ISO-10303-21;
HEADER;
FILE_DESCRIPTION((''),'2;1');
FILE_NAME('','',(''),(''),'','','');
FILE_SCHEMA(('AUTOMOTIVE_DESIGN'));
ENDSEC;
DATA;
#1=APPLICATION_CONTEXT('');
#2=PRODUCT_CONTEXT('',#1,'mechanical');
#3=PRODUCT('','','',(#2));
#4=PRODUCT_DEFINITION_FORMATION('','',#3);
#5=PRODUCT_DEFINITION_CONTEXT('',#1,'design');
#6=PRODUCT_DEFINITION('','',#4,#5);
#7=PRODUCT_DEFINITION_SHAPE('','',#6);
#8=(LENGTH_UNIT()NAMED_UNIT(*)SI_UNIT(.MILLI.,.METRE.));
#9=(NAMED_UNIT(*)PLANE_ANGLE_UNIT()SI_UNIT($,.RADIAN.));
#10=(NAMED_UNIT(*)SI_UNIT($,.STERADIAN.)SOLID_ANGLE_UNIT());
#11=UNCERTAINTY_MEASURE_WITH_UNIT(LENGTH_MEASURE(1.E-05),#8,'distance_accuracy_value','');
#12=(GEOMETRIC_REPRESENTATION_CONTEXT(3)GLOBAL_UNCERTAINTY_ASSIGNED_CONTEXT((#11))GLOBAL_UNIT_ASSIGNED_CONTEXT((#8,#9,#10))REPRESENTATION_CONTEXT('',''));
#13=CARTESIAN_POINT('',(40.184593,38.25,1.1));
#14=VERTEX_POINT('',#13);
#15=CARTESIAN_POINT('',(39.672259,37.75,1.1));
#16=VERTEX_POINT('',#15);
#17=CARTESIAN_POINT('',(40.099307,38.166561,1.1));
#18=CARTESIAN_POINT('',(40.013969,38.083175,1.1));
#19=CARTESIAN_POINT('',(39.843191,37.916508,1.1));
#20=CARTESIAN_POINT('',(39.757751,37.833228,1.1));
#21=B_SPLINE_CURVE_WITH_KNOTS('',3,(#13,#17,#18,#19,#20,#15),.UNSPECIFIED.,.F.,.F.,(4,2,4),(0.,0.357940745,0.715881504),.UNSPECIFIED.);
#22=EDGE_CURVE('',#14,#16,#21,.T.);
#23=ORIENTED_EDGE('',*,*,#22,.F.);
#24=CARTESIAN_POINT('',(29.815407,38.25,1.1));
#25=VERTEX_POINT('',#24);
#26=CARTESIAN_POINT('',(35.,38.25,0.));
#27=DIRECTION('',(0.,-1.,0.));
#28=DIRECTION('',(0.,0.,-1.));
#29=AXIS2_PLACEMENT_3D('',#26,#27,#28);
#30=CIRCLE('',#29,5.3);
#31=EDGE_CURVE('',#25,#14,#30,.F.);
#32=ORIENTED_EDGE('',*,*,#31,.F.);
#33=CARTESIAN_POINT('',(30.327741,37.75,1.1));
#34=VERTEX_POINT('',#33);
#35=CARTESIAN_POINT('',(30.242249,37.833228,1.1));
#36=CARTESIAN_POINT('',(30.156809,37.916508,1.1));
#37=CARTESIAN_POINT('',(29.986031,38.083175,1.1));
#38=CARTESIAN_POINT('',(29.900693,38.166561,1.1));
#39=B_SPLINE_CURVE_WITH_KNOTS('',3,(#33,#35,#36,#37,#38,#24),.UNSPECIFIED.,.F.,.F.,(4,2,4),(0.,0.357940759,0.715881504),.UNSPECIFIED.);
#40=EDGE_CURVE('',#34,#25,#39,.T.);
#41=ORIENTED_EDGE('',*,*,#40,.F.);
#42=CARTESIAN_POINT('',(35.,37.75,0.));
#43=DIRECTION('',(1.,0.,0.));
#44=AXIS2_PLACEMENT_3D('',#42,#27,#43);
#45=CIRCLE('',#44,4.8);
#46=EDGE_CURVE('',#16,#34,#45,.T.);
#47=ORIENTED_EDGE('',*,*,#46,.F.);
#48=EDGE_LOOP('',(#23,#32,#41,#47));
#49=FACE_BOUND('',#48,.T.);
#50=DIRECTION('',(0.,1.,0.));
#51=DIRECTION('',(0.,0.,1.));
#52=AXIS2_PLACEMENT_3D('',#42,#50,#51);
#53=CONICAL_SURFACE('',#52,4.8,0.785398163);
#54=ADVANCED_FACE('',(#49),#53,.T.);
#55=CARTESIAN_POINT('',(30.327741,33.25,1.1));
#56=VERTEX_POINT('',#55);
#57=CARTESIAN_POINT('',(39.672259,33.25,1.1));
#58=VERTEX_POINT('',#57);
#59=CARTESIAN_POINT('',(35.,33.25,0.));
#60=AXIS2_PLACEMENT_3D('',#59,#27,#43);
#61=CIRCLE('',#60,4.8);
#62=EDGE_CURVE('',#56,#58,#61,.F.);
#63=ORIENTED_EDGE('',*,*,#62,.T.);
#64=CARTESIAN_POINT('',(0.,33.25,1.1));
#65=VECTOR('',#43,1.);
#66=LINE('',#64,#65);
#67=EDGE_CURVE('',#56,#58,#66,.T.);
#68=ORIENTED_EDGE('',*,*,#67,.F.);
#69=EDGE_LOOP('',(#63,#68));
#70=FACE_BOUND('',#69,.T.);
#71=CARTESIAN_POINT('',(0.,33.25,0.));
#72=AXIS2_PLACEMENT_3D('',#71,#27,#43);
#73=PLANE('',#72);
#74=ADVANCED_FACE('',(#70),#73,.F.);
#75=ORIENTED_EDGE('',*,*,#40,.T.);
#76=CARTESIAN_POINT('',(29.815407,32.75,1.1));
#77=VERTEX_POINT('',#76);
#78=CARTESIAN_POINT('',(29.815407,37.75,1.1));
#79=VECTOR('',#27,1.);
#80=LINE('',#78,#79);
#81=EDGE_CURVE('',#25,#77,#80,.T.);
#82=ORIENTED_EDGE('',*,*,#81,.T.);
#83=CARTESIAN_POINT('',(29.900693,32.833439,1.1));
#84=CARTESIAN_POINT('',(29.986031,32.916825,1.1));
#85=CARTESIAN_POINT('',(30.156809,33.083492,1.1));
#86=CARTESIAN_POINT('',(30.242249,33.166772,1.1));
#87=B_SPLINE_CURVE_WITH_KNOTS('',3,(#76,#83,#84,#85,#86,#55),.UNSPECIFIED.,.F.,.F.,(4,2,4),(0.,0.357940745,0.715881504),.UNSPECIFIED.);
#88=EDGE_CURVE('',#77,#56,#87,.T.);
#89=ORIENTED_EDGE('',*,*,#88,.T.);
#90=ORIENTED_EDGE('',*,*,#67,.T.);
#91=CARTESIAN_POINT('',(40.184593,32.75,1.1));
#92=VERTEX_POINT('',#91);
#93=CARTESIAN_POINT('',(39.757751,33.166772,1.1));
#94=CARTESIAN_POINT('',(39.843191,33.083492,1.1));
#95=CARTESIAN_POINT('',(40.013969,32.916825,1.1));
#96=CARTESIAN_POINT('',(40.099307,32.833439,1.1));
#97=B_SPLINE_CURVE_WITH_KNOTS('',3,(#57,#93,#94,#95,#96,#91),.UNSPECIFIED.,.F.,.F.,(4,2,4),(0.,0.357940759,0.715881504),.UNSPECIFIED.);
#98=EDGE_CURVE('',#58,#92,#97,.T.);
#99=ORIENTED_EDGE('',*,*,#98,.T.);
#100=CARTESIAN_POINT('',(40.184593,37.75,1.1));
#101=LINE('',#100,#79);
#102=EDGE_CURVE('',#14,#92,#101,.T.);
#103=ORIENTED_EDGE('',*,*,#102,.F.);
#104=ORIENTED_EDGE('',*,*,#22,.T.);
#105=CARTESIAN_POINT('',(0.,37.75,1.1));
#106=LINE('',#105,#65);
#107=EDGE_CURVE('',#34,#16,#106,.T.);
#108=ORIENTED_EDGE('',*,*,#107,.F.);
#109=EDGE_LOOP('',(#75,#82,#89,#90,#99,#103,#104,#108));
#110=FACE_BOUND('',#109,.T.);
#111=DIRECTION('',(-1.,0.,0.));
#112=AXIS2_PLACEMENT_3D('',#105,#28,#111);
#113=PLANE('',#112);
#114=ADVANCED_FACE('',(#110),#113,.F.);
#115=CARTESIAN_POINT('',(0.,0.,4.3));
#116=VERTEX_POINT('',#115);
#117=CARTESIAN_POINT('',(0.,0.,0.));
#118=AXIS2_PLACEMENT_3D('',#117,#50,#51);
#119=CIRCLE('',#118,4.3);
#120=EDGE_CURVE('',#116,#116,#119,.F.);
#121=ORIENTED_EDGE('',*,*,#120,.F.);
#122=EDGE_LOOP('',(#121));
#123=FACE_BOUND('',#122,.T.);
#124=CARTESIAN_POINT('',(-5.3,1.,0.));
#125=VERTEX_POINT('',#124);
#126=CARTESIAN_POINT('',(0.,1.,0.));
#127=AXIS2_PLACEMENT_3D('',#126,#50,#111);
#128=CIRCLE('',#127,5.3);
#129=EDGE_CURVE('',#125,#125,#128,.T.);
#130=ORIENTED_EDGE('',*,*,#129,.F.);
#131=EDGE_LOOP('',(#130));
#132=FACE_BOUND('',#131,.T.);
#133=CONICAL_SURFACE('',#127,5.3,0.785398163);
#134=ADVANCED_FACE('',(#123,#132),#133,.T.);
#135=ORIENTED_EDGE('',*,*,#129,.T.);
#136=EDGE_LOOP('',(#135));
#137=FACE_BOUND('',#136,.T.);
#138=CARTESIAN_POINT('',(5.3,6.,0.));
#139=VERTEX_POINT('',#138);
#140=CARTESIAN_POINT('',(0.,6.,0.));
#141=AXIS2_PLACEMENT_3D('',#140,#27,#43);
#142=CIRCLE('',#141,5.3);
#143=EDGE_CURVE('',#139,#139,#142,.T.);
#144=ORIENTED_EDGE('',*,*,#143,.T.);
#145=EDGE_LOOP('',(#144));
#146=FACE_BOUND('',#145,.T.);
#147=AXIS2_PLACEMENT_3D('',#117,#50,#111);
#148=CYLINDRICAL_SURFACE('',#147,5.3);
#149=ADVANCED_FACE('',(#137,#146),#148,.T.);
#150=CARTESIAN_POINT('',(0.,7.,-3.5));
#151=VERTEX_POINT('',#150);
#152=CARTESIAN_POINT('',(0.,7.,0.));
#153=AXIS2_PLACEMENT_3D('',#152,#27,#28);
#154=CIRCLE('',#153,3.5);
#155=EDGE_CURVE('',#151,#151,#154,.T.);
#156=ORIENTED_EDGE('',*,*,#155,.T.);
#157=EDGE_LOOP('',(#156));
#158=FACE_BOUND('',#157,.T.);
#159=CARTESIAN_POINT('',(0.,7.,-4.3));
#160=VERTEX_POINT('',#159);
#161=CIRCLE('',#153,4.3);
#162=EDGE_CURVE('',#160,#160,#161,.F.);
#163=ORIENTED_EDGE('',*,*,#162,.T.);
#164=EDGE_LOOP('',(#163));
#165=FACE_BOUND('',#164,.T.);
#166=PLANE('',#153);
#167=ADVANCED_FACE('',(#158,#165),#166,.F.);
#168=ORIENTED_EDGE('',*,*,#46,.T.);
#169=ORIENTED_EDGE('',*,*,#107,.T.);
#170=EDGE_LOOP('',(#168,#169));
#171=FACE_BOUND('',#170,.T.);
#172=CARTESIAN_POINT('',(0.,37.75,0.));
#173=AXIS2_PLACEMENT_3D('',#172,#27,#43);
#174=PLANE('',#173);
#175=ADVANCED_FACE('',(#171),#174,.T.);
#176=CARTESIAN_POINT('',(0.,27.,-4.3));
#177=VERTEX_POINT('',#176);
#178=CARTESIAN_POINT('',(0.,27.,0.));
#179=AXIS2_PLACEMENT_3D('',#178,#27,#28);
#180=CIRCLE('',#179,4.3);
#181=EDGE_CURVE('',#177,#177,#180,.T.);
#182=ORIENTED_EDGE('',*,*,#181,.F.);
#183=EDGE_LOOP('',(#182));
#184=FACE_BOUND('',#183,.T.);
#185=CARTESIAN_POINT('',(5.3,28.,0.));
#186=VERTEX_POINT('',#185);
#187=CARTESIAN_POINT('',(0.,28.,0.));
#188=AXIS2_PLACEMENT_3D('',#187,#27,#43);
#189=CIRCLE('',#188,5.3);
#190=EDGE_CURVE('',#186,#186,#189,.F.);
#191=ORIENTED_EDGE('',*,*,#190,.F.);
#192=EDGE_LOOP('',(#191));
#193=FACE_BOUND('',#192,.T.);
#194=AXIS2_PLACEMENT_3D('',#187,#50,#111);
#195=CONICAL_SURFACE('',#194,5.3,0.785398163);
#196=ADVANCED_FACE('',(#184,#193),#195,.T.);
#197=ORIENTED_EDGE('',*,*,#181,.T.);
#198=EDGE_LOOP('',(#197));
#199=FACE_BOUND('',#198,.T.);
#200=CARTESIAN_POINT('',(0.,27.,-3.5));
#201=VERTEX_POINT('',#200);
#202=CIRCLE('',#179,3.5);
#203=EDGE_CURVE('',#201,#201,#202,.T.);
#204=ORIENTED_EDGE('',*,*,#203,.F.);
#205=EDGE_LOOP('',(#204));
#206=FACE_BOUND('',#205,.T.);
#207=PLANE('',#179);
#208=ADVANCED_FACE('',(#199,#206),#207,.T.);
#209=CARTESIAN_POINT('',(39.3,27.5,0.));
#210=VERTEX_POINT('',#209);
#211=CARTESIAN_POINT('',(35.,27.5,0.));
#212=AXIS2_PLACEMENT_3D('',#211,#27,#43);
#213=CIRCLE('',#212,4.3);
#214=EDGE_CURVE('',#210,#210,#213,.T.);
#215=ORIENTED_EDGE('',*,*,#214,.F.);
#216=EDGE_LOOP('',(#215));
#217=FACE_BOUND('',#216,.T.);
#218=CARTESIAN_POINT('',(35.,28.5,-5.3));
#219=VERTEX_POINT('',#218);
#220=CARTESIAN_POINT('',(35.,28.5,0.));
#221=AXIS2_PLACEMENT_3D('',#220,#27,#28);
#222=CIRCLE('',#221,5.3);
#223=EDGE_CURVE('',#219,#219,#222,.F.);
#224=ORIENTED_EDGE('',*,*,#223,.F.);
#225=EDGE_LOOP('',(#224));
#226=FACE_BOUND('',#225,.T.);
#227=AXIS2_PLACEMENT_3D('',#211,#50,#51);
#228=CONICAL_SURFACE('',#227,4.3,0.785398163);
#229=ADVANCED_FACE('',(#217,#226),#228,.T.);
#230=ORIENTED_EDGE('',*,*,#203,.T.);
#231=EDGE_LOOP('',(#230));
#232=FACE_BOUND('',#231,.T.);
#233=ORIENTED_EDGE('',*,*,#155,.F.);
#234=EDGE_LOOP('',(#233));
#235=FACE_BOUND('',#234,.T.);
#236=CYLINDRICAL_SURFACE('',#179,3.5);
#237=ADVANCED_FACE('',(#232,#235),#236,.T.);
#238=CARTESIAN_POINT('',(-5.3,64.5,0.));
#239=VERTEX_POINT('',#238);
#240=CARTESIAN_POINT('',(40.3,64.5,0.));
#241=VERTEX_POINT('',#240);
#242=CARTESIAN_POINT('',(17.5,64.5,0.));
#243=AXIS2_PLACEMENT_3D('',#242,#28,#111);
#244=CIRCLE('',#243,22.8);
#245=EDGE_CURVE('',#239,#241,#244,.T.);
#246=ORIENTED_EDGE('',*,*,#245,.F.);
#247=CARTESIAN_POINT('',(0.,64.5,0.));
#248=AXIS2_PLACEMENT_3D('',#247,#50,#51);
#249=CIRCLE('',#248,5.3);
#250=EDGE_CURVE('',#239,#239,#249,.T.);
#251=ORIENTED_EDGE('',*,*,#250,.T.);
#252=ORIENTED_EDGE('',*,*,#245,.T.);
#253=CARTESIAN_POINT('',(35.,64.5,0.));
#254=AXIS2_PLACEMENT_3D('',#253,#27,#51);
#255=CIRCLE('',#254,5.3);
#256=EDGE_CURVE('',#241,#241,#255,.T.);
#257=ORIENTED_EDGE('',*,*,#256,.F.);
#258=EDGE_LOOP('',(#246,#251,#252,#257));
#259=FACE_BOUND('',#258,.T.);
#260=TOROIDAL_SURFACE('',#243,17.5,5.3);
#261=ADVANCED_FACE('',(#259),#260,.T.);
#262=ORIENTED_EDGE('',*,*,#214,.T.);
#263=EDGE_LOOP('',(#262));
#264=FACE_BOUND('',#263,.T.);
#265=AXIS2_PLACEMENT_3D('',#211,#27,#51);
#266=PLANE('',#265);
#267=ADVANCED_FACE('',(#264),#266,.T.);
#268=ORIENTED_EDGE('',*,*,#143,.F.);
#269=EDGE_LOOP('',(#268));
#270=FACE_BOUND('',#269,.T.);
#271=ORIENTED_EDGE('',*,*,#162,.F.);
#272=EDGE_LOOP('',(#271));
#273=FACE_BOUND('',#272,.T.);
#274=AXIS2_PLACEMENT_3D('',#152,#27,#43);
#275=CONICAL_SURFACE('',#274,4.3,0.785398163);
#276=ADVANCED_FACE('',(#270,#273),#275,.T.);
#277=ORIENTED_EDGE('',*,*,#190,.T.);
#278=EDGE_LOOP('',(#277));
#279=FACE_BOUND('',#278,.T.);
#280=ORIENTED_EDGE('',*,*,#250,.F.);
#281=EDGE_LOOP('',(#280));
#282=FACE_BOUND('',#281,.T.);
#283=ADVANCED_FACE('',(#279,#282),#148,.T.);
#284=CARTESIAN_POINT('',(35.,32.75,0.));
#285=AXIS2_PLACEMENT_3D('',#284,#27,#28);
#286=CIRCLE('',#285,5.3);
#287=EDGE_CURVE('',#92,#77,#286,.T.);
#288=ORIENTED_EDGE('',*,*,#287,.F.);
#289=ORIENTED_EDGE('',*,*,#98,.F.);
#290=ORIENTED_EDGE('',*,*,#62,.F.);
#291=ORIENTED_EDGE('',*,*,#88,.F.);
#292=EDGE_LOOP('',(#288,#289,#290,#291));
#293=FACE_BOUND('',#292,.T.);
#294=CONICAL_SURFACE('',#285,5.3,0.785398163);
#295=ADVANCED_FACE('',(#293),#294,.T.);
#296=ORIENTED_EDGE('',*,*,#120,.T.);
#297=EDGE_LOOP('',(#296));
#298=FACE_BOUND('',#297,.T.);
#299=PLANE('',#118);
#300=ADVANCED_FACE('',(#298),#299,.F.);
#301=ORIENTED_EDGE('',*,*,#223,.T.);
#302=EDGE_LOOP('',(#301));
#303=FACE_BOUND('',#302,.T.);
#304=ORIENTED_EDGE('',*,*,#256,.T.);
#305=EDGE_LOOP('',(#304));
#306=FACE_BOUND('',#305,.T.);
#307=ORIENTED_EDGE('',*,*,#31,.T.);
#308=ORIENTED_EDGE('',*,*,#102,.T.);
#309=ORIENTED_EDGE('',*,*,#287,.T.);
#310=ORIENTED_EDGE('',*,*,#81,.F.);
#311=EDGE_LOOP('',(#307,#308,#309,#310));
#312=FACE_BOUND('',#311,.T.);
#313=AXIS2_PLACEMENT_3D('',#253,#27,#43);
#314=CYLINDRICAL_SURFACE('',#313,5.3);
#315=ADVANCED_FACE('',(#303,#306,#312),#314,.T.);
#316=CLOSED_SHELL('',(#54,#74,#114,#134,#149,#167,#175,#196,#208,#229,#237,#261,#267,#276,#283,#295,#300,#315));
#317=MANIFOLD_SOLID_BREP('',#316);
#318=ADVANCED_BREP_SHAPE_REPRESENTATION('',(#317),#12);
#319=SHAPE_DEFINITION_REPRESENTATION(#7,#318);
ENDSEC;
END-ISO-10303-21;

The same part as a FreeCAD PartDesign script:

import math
import FreeCAD as App
import Part
import Sketcher

V = App.Vector


def edges_at(feature, points):
    """Names of the edges that pass closest to the given points."""
    edges = feature.Shape.Edges
    near = lambda p: min(range(len(edges)), key=lambda i: edges[i].distToShape(Part.Vertex(*p))[0])
    return sorted({f"Edge{near(p) + 1}" for p in points})

doc = App.newDocument("Part")
params = doc.addObject("Spreadsheet::Sheet", "Params")
for row, (alias, value) in enumerate([
    ("sketch1_diameter", "10.6 mm"),
    ("sketch2_radius", "17.5 mm"),
    ("sketch2_height", "37 mm"),
    ("sketch2_height2", "64.5 mm"),
    ("sketch3_radius", "5.3 mm"),
    ("pocket1_length", "4.5 mm"),
    ("sketch4_diameter", "7 mm"),
    ("sketch4_diameter2", "10.95 mm"),
    ("pocket2_length", "20 mm"),
    ("chamfer_size", "1 mm"),
    ("chamfer2_size", "0.5 mm"),
], start=1):
    params.set(f"A{row}", alias)
    params.set(f"B{row}", "=" + value)
    params.setAlias(f"B{row}", alias)

body = doc.addObject("PartDesign::Body", "Body")

# Sketch on XZ plane
sketch1 = body.newObject("Sketcher::SketchObject", "Sketch")
sketch1.AttachmentSupport = (doc.getObject("XZ_Plane"), [""])
sketch1.MapMode = "FlatFace"
sketch1.addGeometry(Part.Circle(V(0, 0, 0), V(0, 0, 1), 5), False)
sketch1.addConstraint([
    Sketcher.Constraint("Coincident", 0, 3, -1, 1),
    Sketcher.Constraint("Diameter", 0, 10.6),
])
sketch1.setExpression("Constraints[1]", "Params.sketch1_diameter")

# Sketch on XY plane
sketch2 = body.newObject("Sketcher::SketchObject", "Sketch001")
sketch2.AttachmentSupport = (doc.getObject("XY_Plane"), [""])
sketch2.MapMode = "FlatFace"
sketch2.addGeometry([
    Part.LineSegment(V(0, 0, 0), V(0, 64, 0)),
    Part.ArcOfCircle(Part.Circle(V(18, 64, 0), V(0, 0, 1), 18), math.radians(0), math.radians(180)),
    Part.LineSegment(V(35, 64, 0), V(35, 28, 0)),
], False)
sketch2.addConstraint([
    Sketcher.Constraint("Tangent", 0, 2, 1, 2),
    Sketcher.Constraint("Tangent", 1, 1, 2, 1),
    Sketcher.Constraint("Vertical", 0),
    Sketcher.Constraint("Vertical", 2),
    Sketcher.Constraint("Coincident", 0, 1, -1, 1),
    Sketcher.Constraint("Radius", 1, 17.5),
    Sketcher.Constraint("DistanceY", 2, 2, 2, 1, 37.0),
    Sketcher.Constraint("DistanceY", 0, 1, 0, 2, 64.5),
])
sketch2.setExpression("Constraints[5]", "Params.sketch2_radius")
sketch2.setExpression("Constraints[6]", "Params.sketch2_height")
sketch2.setExpression("Constraints[7]", "Params.sketch2_height2")
doc.recompute()

additivepipe = body.newObject("PartDesign::AdditivePipe", "AdditivePipe")
additivepipe.Profile = sketch1
additivepipe.Spine = (sketch2, ["Edge1", "Edge2", "Edge3"])

# Sketch on XZ plane
sketch3 = body.newObject("Sketcher::SketchObject", "Sketch002")
sketch3.AttachmentSupport = (doc.getObject("XZ_Plane"), [""])
sketch3.MapMode = "FlatFace"
sketch3.AttachmentOffset = App.Placement(V(0, 0, -33.25), App.Rotation())
sketch3.addGeometry([
    Part.LineSegment(V(30, 1, 0), V(40, 1, 0)),
    Part.ArcOfCircle(Part.Circle(V(35, 0, 0), V(0, 0, 1), 5), math.radians(12), math.radians(168)),
], False)
sketch3.addConstraint([
    Sketcher.Constraint("Coincident", 0, 1, 1, 2),
    Sketcher.Constraint("Coincident", 1, 1, 0, 2),
    Sketcher.Constraint("Horizontal", 0),
    Sketcher.Constraint("PointOnObject", 1, 3, -1),
    Sketcher.Constraint("Radius", 1, 5.3),
    Sketcher.Constraint("DistanceX", -1, 1, 1, 3, 35.0),
    Sketcher.Constraint("DistanceY", -1, 1, 0, 1, 1.1),
])
sketch3.setExpression("Constraints[4]", "Params.sketch3_radius")
pocket1 = body.newObject("PartDesign::Pocket", "Pocket")
pocket1.Profile = sketch3
pocket1.setExpression("Length", "Params.pocket1_length")

# Sketch on XZ plane
sketch4 = body.newObject("Sketcher::SketchObject", "Sketch003")
sketch4.AttachmentSupport = (doc.getObject("XZ_Plane"), [""])
sketch4.MapMode = "FlatFace"
sketch4.AttachmentOffset = App.Placement(V(0, 0, -7), App.Rotation())
sketch4.addGeometry([
    Part.Circle(V(0, 0, 0), V(0, 0, 1), 5.5),
    Part.Circle(V(0, 0, 0), V(0, 0, 1), 3.5),
], False)
sketch4.addConstraint([
    Sketcher.Constraint("Coincident", 0, 3, -1, 1),
    Sketcher.Constraint("Coincident", 1, 3, -1, 1),
    Sketcher.Constraint("Diameter", 1, 7.0),
    Sketcher.Constraint("Diameter", 0, 10.95),
])
sketch4.setExpression("Constraints[2]", "Params.sketch4_diameter")
sketch4.setExpression("Constraints[3]", "Params.sketch4_diameter2")
pocket2 = body.newObject("PartDesign::Pocket", "Pocket001")
pocket2.Profile = sketch4
pocket2.setExpression("Length", "Params.pocket2_length")
doc.recompute()

chamfer = body.newObject("PartDesign::Chamfer", "Chamfer")
chamfer.Base = (pocket2, edges_at(pocket2, [
    (40.3, 27.5, 0),
    (-5.3, 7, 0),
    (-5.3, 27, 0),
    (-5.3, 0, 0),
]))
chamfer.setExpression("Size", "Params.chamfer_size")
doc.recompute()

chamfer2 = body.newObject("PartDesign::Chamfer", "Chamfer001")
chamfer2.Base = (chamfer, edges_at(chamfer, [(35, 37.75, 5.3), (35, 33.25, 5.3)]))
chamfer2.setExpression("Size", "Params.chamfer2_size")

doc.recompute()
